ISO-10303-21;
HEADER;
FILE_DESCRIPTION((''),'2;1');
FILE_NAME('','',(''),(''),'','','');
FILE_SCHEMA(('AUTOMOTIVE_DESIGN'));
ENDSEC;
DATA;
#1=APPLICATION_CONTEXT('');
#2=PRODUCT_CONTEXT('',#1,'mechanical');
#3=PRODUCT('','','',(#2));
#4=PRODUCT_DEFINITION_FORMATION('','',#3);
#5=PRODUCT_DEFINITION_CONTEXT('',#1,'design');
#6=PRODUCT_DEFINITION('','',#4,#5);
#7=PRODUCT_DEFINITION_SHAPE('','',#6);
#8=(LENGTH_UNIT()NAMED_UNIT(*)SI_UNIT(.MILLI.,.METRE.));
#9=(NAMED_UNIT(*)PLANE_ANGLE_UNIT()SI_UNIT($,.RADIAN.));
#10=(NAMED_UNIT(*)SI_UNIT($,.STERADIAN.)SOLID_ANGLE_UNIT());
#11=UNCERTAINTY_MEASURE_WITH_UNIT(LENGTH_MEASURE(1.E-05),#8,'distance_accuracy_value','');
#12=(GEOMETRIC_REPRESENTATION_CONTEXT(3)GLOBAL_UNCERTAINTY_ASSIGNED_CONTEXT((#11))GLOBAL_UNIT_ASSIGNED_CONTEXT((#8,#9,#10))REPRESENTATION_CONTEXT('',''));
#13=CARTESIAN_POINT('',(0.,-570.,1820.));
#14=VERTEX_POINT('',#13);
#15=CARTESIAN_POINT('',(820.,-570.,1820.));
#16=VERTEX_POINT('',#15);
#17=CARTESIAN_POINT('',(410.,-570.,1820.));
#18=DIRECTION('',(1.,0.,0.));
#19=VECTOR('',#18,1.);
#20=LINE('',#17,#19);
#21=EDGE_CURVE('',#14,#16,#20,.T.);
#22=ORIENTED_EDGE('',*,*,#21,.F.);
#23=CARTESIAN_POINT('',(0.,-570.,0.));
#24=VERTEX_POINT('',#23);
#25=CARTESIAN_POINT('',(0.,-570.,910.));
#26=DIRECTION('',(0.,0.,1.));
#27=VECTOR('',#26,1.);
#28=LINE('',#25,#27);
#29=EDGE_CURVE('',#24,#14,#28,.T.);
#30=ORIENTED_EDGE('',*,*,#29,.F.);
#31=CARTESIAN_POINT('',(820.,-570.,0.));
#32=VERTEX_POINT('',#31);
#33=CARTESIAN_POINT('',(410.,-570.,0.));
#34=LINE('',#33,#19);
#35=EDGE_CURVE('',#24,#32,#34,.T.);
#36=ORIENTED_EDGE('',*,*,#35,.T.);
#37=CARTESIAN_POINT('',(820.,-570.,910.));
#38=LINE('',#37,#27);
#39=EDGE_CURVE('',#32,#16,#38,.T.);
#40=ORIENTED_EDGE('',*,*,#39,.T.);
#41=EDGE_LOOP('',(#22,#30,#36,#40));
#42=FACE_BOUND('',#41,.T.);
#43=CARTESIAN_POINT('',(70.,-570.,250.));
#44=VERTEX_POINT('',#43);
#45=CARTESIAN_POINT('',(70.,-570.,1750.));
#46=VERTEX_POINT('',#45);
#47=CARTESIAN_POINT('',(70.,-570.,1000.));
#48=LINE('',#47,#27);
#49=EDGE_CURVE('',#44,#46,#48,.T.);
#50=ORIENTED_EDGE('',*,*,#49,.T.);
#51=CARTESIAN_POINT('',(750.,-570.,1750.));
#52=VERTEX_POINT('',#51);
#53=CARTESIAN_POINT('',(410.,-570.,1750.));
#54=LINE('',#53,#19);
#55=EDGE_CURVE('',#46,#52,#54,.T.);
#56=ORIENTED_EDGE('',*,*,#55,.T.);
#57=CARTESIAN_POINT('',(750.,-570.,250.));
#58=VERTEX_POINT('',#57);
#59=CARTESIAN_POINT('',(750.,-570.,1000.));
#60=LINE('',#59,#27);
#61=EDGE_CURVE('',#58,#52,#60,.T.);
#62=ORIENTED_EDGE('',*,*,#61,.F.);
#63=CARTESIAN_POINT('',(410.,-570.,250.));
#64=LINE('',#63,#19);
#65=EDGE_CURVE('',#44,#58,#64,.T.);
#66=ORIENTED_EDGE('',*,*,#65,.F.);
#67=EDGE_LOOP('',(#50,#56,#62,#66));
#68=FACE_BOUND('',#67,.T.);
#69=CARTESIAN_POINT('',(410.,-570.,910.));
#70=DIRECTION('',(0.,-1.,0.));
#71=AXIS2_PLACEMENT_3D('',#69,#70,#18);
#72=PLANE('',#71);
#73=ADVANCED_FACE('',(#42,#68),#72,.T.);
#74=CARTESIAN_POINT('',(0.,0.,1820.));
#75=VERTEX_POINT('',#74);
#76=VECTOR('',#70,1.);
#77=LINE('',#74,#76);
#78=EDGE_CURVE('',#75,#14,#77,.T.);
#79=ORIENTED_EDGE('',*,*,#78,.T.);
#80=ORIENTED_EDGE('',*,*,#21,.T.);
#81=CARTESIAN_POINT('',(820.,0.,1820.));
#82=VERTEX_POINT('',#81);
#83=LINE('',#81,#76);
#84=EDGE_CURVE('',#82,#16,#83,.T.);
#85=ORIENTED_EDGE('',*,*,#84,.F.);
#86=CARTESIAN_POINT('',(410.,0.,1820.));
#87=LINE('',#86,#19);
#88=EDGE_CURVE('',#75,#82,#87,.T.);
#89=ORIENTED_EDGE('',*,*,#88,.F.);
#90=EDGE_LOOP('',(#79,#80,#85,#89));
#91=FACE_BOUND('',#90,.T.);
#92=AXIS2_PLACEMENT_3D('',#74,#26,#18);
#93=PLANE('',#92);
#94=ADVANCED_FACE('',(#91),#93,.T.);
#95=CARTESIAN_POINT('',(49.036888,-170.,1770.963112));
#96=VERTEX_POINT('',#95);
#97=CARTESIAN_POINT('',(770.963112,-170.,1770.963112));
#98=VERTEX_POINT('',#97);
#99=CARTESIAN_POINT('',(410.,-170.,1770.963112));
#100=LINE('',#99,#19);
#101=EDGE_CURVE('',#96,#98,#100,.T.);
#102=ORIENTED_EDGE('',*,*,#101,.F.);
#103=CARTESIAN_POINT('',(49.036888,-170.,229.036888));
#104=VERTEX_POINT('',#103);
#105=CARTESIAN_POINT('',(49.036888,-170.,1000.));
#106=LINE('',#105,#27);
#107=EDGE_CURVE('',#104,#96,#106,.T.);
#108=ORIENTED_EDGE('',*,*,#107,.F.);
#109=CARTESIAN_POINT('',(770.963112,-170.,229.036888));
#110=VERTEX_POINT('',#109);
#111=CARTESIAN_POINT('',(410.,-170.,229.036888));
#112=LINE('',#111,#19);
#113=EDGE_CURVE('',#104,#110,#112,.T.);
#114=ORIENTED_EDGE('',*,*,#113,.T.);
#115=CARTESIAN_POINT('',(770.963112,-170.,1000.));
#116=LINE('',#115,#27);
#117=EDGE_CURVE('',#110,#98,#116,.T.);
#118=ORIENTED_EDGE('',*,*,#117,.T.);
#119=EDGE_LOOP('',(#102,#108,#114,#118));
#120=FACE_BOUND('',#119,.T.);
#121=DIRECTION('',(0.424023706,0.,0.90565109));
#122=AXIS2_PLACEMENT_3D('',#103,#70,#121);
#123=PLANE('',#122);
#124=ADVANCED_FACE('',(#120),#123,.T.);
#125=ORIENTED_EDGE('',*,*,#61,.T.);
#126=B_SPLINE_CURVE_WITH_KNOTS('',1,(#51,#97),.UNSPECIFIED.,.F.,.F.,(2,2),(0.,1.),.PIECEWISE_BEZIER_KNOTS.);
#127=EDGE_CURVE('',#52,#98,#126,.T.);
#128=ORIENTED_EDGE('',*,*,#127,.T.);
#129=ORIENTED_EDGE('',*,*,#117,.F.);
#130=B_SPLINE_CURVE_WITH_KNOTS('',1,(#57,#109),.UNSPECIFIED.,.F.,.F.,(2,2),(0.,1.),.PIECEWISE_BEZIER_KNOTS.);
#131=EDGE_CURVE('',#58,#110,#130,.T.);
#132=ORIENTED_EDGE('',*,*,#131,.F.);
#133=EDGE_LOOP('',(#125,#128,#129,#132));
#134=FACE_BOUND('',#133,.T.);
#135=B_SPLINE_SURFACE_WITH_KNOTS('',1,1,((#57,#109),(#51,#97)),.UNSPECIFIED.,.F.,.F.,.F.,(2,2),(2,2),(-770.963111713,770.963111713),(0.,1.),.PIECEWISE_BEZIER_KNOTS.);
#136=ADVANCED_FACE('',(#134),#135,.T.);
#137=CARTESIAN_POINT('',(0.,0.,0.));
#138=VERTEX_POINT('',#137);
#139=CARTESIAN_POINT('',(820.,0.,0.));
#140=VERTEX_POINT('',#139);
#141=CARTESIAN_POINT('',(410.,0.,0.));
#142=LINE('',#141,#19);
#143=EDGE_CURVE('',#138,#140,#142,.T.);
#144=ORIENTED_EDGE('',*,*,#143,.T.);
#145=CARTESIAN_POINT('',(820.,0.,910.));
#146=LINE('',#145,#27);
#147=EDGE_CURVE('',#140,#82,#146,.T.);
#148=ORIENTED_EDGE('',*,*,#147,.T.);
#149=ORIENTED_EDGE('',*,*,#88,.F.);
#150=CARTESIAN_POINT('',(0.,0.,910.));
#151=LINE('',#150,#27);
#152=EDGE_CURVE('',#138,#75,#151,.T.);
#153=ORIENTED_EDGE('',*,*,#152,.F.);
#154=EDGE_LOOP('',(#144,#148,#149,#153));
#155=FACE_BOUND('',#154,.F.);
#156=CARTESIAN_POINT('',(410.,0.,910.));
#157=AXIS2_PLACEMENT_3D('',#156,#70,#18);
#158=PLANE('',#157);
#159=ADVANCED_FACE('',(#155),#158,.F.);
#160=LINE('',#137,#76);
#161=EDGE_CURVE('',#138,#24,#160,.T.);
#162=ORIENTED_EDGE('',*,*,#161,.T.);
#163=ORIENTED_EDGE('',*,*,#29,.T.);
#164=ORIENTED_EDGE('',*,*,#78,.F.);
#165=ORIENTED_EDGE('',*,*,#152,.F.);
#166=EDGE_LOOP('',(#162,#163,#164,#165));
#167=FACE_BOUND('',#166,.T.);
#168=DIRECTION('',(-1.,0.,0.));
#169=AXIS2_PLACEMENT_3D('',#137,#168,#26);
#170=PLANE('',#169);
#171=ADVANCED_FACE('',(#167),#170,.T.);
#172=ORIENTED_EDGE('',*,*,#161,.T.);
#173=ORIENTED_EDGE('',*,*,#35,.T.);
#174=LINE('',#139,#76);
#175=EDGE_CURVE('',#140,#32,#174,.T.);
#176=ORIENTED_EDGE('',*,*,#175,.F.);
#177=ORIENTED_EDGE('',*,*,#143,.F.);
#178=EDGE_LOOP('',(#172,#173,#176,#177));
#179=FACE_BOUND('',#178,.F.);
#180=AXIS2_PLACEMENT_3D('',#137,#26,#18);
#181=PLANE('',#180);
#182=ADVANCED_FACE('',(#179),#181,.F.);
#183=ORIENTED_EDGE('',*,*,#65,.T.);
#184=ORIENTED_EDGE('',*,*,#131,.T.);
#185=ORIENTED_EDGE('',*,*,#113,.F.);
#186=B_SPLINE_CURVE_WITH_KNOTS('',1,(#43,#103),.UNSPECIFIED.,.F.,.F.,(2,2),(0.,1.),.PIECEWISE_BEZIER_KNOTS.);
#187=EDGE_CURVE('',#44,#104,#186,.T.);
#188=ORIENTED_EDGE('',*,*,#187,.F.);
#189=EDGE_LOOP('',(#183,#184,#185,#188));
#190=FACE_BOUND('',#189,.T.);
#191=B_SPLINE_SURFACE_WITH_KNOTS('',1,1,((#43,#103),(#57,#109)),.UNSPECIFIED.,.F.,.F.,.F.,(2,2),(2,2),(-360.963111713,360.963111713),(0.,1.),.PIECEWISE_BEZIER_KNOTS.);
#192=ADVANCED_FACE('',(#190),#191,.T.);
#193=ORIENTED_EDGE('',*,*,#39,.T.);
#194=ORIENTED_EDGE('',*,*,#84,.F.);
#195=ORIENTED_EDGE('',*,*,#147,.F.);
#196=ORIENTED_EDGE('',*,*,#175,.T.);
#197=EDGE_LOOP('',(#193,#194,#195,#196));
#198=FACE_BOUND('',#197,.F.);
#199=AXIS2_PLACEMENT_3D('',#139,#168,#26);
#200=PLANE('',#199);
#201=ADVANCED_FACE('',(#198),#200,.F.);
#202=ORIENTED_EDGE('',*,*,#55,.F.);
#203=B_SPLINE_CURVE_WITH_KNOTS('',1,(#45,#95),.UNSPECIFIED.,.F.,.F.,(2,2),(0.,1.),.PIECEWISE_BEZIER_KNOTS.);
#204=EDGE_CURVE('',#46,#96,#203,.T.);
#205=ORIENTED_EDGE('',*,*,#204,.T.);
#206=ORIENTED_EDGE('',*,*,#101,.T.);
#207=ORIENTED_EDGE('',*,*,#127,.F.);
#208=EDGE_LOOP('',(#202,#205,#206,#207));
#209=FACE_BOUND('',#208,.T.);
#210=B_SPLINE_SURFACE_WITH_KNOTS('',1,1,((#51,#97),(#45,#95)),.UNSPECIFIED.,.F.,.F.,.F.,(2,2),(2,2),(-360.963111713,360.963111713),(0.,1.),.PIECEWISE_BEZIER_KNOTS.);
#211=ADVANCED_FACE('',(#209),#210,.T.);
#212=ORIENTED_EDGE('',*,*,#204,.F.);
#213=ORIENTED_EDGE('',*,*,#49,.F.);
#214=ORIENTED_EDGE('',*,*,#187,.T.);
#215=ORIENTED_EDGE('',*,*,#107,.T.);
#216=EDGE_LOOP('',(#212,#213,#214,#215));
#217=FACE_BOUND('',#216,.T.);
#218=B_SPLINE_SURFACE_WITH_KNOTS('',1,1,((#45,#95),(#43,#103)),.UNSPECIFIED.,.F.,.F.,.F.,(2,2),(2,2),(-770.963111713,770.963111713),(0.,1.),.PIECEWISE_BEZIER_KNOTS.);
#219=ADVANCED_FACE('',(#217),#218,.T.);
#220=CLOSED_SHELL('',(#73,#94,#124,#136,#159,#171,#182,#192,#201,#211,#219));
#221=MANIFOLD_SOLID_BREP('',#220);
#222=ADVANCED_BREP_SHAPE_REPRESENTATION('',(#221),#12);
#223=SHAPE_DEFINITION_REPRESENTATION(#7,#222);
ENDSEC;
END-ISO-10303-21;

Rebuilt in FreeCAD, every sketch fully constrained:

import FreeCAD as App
import Part
import Sketcher
from FreeCAD import Vector
Q = App.Units.Quantity


def add_polygon(sketch, points):
    """Adds a closed chain of lines whose ends are joined by coincident constraints."""
    first, n = sketch.GeometryCount, len(points)
    for a, b in zip(points, points[1:] + points[:1]):
        sketch.addGeometry(Part.LineSegment(App.Vector(*a, 0), App.Vector(*b, 0)), False)
    for i in range(n):
        sketch.addConstraint(Sketcher.Constraint("Coincident", first + i, 2, first + (i + 1) % n, 1))

doc = App.newDocument("Part")
body = doc.addObject("PartDesign::Body", "Body")

# Sketch on XZ plane
sketch1 = body.newObject("Sketcher::SketchObject", "Sketch")
sketch1.AttachmentSupport = (doc.getObject("XZ_Plane"), [""])
sketch1.MapMode = "FlatFace"
add_polygon(sketch1, [(0, 1820), (0, 0), (820, 0), (820, 1820)])  # lines 0-3
sketch1.addConstraint([
    Sketcher.Constraint("Vertical", 0),
    Sketcher.Constraint("Horizontal", 1),
    Sketcher.Constraint("Vertical", 2),
    Sketcher.Constraint("Horizontal", 3),
    Sketcher.Constraint("Coincident", 0, 2, -1, 1),
    Sketcher.Constraint("DistanceX", 1, 1, 1, 2, Q("820 mm")),
    Sketcher.Constraint("DistanceY", 0, 2, 0, 1, Q("1820 mm")),
])
pad1 = body.newObject("PartDesign::Pad", "Pad")
pad1.Profile = sketch1
pad1.Length = 570

# Sketch on XZ plane
sketch2 = body.newObject("Sketcher::SketchObject", "Sketch001")
sketch2.AttachmentSupport = (doc.getObject("XZ_Plane"), [""])
sketch2.MapMode = "FlatFace"
sketch2.AttachmentOffset = App.Placement(Vector(0, 0, 570), App.Rotation())
add_polygon(sketch2, [(70, 1750), (70, 250), (750, 250), (750, 1750)])  # lines 0-3
sketch2.addConstraint([
    Sketcher.Constraint("Vertical", 0),
    Sketcher.Constraint("Horizontal", 1),
    Sketcher.Constraint("Vertical", 2),
    Sketcher.Constraint("Horizontal", 3),
    Sketcher.Constraint("DistanceX", 1, 1, 1, 2, Q("680 mm")),
    Sketcher.Constraint("DistanceY", 0, 2, 0, 1, Q("1500 mm")),
    Sketcher.Constraint("DistanceX", -1, 1, 0, 2, Q("70 mm")),
    Sketcher.Constraint("DistanceY", -1, 1, 0, 2, Q("250 mm")),
])
pocket1 = body.newObject("PartDesign::Pocket", "Pocket")
pocket1.Profile = sketch2
pocket1.Length = 400
pocket1.TaperAngle = 3

doc.recompute()
